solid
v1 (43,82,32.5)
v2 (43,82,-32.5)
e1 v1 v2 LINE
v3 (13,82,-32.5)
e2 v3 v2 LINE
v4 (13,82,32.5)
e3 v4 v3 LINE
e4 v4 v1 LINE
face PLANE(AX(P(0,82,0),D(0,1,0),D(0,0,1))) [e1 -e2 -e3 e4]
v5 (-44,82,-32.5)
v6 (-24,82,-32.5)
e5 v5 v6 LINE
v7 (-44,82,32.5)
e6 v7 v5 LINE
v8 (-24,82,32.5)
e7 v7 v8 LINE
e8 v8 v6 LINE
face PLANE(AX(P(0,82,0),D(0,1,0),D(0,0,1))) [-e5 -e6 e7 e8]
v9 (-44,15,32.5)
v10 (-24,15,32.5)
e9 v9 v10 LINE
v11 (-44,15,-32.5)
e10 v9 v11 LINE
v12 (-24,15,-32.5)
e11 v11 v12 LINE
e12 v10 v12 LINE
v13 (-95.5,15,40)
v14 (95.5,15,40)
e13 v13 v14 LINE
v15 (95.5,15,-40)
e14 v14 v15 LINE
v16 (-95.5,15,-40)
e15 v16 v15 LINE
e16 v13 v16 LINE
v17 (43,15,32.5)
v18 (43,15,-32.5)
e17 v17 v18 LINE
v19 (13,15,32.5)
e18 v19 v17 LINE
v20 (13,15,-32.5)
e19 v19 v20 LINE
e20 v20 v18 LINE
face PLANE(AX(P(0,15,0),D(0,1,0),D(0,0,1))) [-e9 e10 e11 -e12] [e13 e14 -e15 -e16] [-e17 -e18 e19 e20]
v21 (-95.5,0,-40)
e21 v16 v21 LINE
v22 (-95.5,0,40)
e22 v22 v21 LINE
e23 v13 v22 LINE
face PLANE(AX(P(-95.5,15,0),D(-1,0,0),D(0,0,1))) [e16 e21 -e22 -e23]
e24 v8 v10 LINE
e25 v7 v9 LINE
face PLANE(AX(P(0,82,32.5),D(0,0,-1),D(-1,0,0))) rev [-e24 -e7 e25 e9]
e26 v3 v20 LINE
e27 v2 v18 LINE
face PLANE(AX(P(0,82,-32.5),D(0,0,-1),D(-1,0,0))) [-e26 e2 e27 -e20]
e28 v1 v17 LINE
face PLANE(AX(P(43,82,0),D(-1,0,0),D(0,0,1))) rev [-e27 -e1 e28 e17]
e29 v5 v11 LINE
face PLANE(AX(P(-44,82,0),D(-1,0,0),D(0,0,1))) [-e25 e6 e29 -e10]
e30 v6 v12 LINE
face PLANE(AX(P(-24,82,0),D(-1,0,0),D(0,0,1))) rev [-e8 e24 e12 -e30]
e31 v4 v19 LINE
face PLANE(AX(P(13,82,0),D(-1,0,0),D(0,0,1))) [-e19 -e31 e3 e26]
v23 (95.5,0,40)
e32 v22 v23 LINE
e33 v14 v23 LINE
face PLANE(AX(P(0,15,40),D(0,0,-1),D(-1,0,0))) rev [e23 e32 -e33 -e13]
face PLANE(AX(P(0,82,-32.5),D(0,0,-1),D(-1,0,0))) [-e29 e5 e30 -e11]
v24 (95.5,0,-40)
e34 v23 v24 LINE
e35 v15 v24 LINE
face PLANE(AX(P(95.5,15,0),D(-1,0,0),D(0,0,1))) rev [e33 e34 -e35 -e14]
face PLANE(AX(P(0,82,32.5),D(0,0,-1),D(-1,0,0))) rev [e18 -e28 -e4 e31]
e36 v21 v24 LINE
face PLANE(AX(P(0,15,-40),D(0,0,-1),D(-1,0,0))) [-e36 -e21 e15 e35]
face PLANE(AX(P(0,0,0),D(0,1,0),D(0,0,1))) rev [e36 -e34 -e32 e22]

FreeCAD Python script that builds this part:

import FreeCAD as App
import Part
import Sketcher

V = App.Vector

doc = App.newDocument("Part")
params = doc.addObject("Spreadsheet::Sheet", "Params")
for row, (alias, value) in enumerate([
    ("sketch1_width", "191 mm"),
    ("sketch1_height", "80 mm"),
    ("pad1_length", "15 mm"),
    ("sketch2_width", "30 mm"),
    ("sketch2_width2", "20 mm"),
    ("sketch2_height", "65 mm"),
    ("pad2_length", "67 mm"),
], start=1):
    params.set(f"A{row}", alias)
    params.set(f"B{row}", "=" + value)
    params.setAlias(f"B{row}", alias)

body = doc.addObject("PartDesign::Body", "Body")

# Sketch on XZ plane
sketch1 = doc.addObject("Sketcher::SketchObject", "Sketch")
body.addObject(sketch1)
sketch1.AttachmentSupport = (doc.XZ_Plane, [""])
sketch1.MapMode = "FlatFace"
sketch1.addGeometry(Part.LineSegment(V(-96, -40, 0), V(-96, 40, 0)), False)
sketch1.addGeometry(Part.LineSegment(V(-96, 40, 0), V(96, 40, 0)), False)
sketch1.addGeometry(Part.LineSegment(V(96, 40, 0), V(96, -40, 0)), False)
sketch1.addGeometry(Part.LineSegment(V(96, -40, 0), V(-96, -40, 0)), False)
sketch1.addConstraint(Sketcher.Constraint("Coincident", 0, 2, 1, 1))
sketch1.addConstraint(Sketcher.Constraint("Coincident", 1, 2, 2, 1))
sketch1.addConstraint(Sketcher.Constraint("Coincident", 2, 2, 3, 1))
sketch1.addConstraint(Sketcher.Constraint("Coincident", 3, 2, 0, 1))
sketch1.addConstraint(Sketcher.Constraint("Vertical", 0))
sketch1.addConstraint(Sketcher.Constraint("Horizontal", 1))
sketch1.addConstraint(Sketcher.Constraint("Vertical", 2))
sketch1.addConstraint(Sketcher.Constraint("Horizontal", 3))
sketch1.addConstraint(Sketcher.Constraint("Symmetric", 0, 2, 2, 2, -1, 1))
sketch1.addConstraint(Sketcher.Constraint("DistanceX", 1, 1, 1, 2, 191.0))
sketch1.addConstraint(Sketcher.Constraint("DistanceY", 0, 1, 0, 2, 80.0))
sketch1.setExpression("Constraints[9]", "Params.sketch1_width")
sketch1.setExpression("Constraints[10]", "Params.sketch1_height")
pad1 = doc.addObject("PartDesign::Pad", "Pad")
body.addObject(pad1)
pad1.Profile = sketch1
pad1.setExpression("Length", "Params.pad1_length")
pad1.Reversed = True

# Sketch on XZ plane
sketch2 = doc.addObject("Sketcher::SketchObject", "Sketch001")
body.addObject(sketch2)
sketch2.AttachmentSupport = (doc.XZ_Plane, [""])
sketch2.MapMode = "FlatFace"
sketch2.AttachmentOffset = App.Placement(V(0, 0, -15), App.Rotation())
sketch2.addGeometry(Part.LineSegment(V(13, -32, 0), V(13, 32, 0)), False)
sketch2.addGeometry(Part.LineSegment(V(13, 32, 0), V(43, 32, 0)), False)
sketch2.addGeometry(Part.LineSegment(V(43, 32, 0), V(43, -32, 0)), False)
sketch2.addGeometry(Part.LineSegment(V(43, -32, 0), V(13, -32, 0)), False)
sketch2.addGeometry(Part.LineSegment(V(-44, -32, 0), V(-44, 32, 0)), False)
sketch2.addGeometry(Part.LineSegment(V(-44, 32, 0), V(-24, 32, 0)), False)
sketch2.addGeometry(Part.LineSegment(V(-24, 32, 0), V(-24, -32, 0)), False)
sketch2.addGeometry(Part.LineSegment(V(-24, -32, 0), V(-44, -32, 0)), False)
sketch2.addConstraint(Sketcher.Constraint("Coincident", 0, 2, 1, 1))
sketch2.addConstraint(Sketcher.Constraint("Coincident", 1, 2, 2, 1))
sketch2.addConstraint(Sketcher.Constraint("Coincident", 2, 2, 3, 1))
sketch2.addConstraint(Sketcher.Constraint("Coincident", 3, 2, 0, 1))
sketch2.addConstraint(Sketcher.Constraint("Coincident", 4, 2, 5, 1))
sketch2.addConstraint(Sketcher.Constraint("Coincident", 5, 2, 6, 1))
sketch2.addConstraint(Sketcher.Constraint("Coincident", 6, 2, 7, 1))
sketch2.addConstraint(Sketcher.Constraint("Coincident", 7, 2, 4, 1))
sketch2.addConstraint(Sketcher.Constraint("Vertical", 0))
sketch2.addConstraint(Sketcher.Constraint("Horizontal", 1))
sketch2.addConstraint(Sketcher.Constraint("Vertical", 2))
sketch2.addConstraint(Sketcher.Constraint("Horizontal", 3))
sketch2.addConstraint(Sketcher.Constraint("Vertical", 4))
sketch2.addConstraint(Sketcher.Constraint("Horizontal", 5))
sketch2.addConstraint(Sketcher.Constraint("Vertical", 6))
sketch2.addConstraint(Sketcher.Constraint("Horizontal", 7))
sketch2.addConstraint(Sketcher.Constraint("Horizontal", 1, 2, 4, 2))
sketch2.addConstraint(Sketcher.Constraint("Horizontal", 3, 2, 6, 2))
sketch2.addConstraint(Sketcher.Constraint("DistanceX", 1, 1, 1, 2, 30.0))
sketch2.addConstraint(Sketcher.Constraint("DistanceX", 5, 1, 5, 2, 20.0))
sketch2.addConstraint(Sketcher.Constraint("DistanceY", 0, 1, 0, 2, 65.0))
sketch2.addConstraint(Sketcher.Constraint("DistanceX", -1, 1, 0, 2, 13.0))
sketch2.addConstraint(Sketcher.Constraint("DistanceX", 4, 2, -1, 1, 44.0))
sketch2.addConstraint(Sketcher.Constraint("DistanceY", -1, 1, 0, 2, 32.5))
sketch2.setExpression("Constraints[18]", "Params.sketch2_width")
sketch2.setExpression("Constraints[19]", "Params.sketch2_width2")
sketch2.setExpression("Constraints[20]", "Params.sketch2_height")
pad2 = doc.addObject("PartDesign::Pad", "Pad001")
body.addObject(pad2)
pad2.Profile = sketch2
pad2.setExpression("Length", "Params.pad2_length")
pad2.Reversed = True

doc.recompute()
